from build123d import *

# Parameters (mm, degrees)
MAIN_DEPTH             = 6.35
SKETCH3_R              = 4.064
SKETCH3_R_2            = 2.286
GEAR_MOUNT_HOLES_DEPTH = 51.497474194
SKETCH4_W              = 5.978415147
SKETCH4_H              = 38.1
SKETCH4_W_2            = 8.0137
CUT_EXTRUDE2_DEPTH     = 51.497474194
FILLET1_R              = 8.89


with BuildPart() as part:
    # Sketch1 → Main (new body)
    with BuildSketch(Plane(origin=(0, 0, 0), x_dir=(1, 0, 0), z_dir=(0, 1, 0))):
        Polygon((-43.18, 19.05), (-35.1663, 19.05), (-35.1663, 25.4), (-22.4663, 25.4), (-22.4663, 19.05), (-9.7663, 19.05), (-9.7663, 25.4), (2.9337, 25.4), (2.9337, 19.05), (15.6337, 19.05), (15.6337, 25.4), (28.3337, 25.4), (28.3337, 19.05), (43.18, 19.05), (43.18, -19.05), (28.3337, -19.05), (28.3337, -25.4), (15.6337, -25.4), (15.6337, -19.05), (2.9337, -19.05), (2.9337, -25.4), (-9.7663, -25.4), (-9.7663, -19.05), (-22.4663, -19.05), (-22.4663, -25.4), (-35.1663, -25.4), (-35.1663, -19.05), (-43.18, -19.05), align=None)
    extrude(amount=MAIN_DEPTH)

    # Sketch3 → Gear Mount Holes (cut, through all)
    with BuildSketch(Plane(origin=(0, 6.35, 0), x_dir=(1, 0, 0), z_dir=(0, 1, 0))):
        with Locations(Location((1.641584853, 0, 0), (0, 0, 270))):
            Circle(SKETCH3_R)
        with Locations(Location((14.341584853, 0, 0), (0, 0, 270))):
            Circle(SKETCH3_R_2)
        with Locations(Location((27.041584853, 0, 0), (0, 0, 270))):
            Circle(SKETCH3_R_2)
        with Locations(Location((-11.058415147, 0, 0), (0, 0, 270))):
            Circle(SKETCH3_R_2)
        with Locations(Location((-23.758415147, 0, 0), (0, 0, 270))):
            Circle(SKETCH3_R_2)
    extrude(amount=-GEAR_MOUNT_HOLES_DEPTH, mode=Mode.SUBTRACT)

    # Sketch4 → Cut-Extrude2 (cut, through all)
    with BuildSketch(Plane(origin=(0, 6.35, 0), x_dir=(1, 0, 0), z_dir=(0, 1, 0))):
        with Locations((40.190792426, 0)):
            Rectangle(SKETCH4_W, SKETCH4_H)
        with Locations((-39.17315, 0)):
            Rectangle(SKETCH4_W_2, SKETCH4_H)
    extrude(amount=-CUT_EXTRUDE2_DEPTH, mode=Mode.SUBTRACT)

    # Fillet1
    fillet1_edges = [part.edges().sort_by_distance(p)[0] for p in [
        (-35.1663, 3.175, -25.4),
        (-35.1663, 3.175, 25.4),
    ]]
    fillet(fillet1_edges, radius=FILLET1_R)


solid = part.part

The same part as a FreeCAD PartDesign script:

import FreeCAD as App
import Part
import Sketcher
from FreeCAD import Vector
Q = App.Units.Quantity


def edges_at(feature, points):
    """Names of the edges that pass closest to the given points."""
    edges = feature.Shape.Edges
    near = lambda p: min(range(len(edges)), key=lambda i: edges[i].distToShape(Part.Vertex(*p))[0])
    return sorted({f"Edge{near(p) + 1}" for p in points})


def add_polygon(sketch, points):
    """Adds a closed chain of lines whose ends are joined by coincident constraints."""
    first, n = sketch.GeometryCount, len(points)
    for a, b in zip(points, points[1:] + points[:1]):
        sketch.addGeometry(Part.LineSegment(App.Vector(*a, 0), App.Vector(*b, 0)), False)
    for i in range(n):
        sketch.addConstraint(Sketcher.Constraint("Coincident", first + i, 2, first + (i + 1) % n, 1))

doc = App.newDocument("Part")
body = doc.addObject("PartDesign::Body", "Body")

# Sketch on XZ plane
sketch1 = doc.addObject("Sketcher::SketchObject", "Sketch")
body.addObject(sketch1)
sketch1.AttachmentSupport = (doc.XZ_Plane, [""])
sketch1.MapMode = "FlatFace"
add_polygon(sketch1, [(-35, -19), (-43, -19), (-43, 19), (-35, 19), (-35, 25), (-22, 25), (-22, 19), (-10, 19), (-10, 25), (3, 25), (3, 19), (16, 19), (16, 25), (28, 25), (28, 19), (43, 19), (43, -19), (28, -19), (28, -25), (16, -25), (16, -19), (3, -19), (3, -25), (-10, -25), (-10, -19), (-22, -19), (-22, -25), (-35, -25)])  # lines 0-27
sketch1.addConstraint([
    Sketcher.Constraint("Horizontal", 0),
    Sketcher.Constraint("Vertical", 1),
    Sketcher.Constraint("Horizontal", 2),
    Sketcher.Constraint("Vertical", 3),
    Sketcher.Constraint("Horizontal", 4),
    Sketcher.Constraint("Vertical", 5),
    Sketcher.Constraint("Horizontal", 6),
    Sketcher.Constraint("Vertical", 7),
    Sketcher.Constraint("Horizontal", 8),
    Sketcher.Constraint("Vertical", 9),
    Sketcher.Constraint("Horizontal", 10),
    Sketcher.Constraint("Vertical", 11),
    Sketcher.Constraint("Horizontal", 12),
    Sketcher.Constraint("Vertical", 13),
    Sketcher.Constraint("Horizontal", 14),
    Sketcher.Constraint("Vertical", 15),
    Sketcher.Constraint("Horizontal", 16),
    Sketcher.Constraint("Vertical", 17),
    Sketcher.Constraint("Horizontal", 18),
    Sketcher.Constraint("Vertical", 19),
    Sketcher.Constraint("Horizontal", 20),
    Sketcher.Constraint("Vertical", 21),
    Sketcher.Constraint("Horizontal", 22),
    Sketcher.Constraint("Vertical", 23),
    Sketcher.Constraint("Horizontal", 24),
    Sketcher.Constraint("Vertical", 25),
    Sketcher.Constraint("Horizontal", 26),
    Sketcher.Constraint("Vertical", 27),
    Sketcher.Constraint("Symmetric", 0, 2, 14, 2, -1, 1),
    Sketcher.Constraint("Symmetric", 13, 2, 16, 2, -1),
    Sketcher.Constraint("Symmetric", 11, 2, 18, 2, -1),
    Sketcher.Constraint("Symmetric", 9, 2, 20, 2, -1),
    Sketcher.Constraint("Symmetric", 7, 2, 22, 2, -1),
    Sketcher.Constraint("Symmetric", 5, 2, 24, 2, -1),
    Sketcher.Constraint("Symmetric", 3, 2, 26, 2, -1),
    Sketcher.Constraint("Horizontal", 2, 2, 5, 2),
    Sketcher.Constraint("Horizontal", 4, 2, 7, 2),
    Sketcher.Constraint("Horizontal", 6, 2, 9, 2),
    Sketcher.Constraint("Horizontal", 8, 2, 11, 2),
    Sketcher.Constraint("Horizontal", 10, 2, 13, 2),
    Sketcher.Constraint("Equal", 4, 6),
    Sketcher.Constraint("Equal", 6, 8),
    Sketcher.Constraint("Equal", 8, 10),
    Sketcher.Constraint("Equal", 10, 12),
    Sketcher.Constraint("DistanceX", 4, 1, 4, 2, Q("0.5 in")),
    Sketcher.Constraint("DistanceY", 1, 1, 1, 2, Q("1.5 in")),
    Sketcher.Constraint("DistanceY", -1, 1, 3, 2, Q("1 in")),
    Sketcher.Constraint("DistanceX", 0, 2, -1, 1, Q("1.7 in")),
    Sketcher.Constraint("DistanceX", 0, 2, 0, 1, Q("0.3155 in")),
])
pad1 = doc.addObject("PartDesign::Pad", "Pad")
body.addObject(pad1)
pad1.Profile = sketch1
pad1.Length = Q("0.25 in")
pad1.Reversed = True

# Sketch on XZ plane
sketch2 = doc.addObject("Sketcher::SketchObject", "Sketch001")
body.addObject(sketch2)
sketch2.AttachmentSupport = (doc.XZ_Plane, [""])
sketch2.MapMode = "FlatFace"
sketch2.AttachmentOffset = App.Placement(Vector(0, 0, -0.25 * 25.4), App.Rotation())
sketch2.addGeometry([
    Part.Circle(Vector(1.6, 0, 0), Vector(0, 0, 1), 4.1),  # 0
    Part.Circle(Vector(14.3, 0, 0), Vector(0, 0, 1), 2.3),  # 1
    Part.Circle(Vector(27, 0, 0), Vector(0, 0, 1), 2.3),  # 2
    Part.Circle(Vector(-11.1, 0, 0), Vector(0, 0, 1), 2.3),  # 3
    Part.Circle(Vector(-23.8, 0, 0), Vector(0, 0, 1), 2.3),  # 4
], False)
sketch2.addConstraint([
    Sketcher.Constraint("Equal", 1, 2),
    Sketcher.Constraint("Equal", 2, 3),
    Sketcher.Constraint("Equal", 3, 4),
    Sketcher.Constraint("PointOnObject", 0, 3, -1),
    Sketcher.Constraint("PointOnObject", 1, 3, -1),
    Sketcher.Constraint("PointOnObject", 2, 3, -1),
    Sketcher.Constraint("PointOnObject", 3, 3, -1),
    Sketcher.Constraint("PointOnObject", 4, 3, -1),
    Sketcher.Constraint("Diameter", 0, Q("0.32 in")),
    Sketcher.Constraint("Diameter", 1, Q("0.18 in")),
    Sketcher.Constraint("DistanceX", 0, 3, 2, 3, Q("1 in")),
    Sketcher.Constraint("DistanceX", 3, 3, 1, 3, Q("1 in")),
    Sketcher.Constraint("DistanceX", 4, 3, 0, 3, Q("1 in")),
    Sketcher.Constraint("DistanceX", 0, 3, 1, 3, Q("0.5 in")),
    Sketcher.Constraint("DistanceX", -1, 1, 0, 3, 1.641585),
])
pocket1 = doc.addObject("PartDesign::Pocket", "Pocket")
body.addObject(pocket1)
pocket1.Profile = sketch2
pocket1.Type = "ThroughAll"
pocket1.Reversed = True

# Sketch on XZ plane
sketch3 = doc.addObject("Sketcher::SketchObject", "Sketch002")
body.addObject(sketch3)
sketch3.AttachmentSupport = (doc.XZ_Plane, [""])
sketch3.MapMode = "FlatFace"
sketch3.AttachmentOffset = App.Placement(Vector(0, 0, -0.25 * 25.4), App.Rotation())
add_polygon(sketch3, [(37, -19), (37, 19), (43, 19), (43, -19)])  # lines 0-3
add_polygon(sketch3, [(-43, -19), (-43, 19), (-35, 19), (-35, -19)])  # lines 4-7
sketch3.addConstraint([
    Sketcher.Constraint("Vertical", 0),
    Sketcher.Constraint("Horizontal", 1),
    Sketcher.Constraint("Vertical", 2),
    Sketcher.Constraint("Horizontal", 3),
    Sketcher.Constraint("Vertical", 4),
    Sketcher.Constraint("Horizontal", 5),
    Sketcher.Constraint("Vertical", 6),
    Sketcher.Constraint("Horizontal", 7),
    Sketcher.Constraint("Symmetric", 2, 2, 4, 2, -1, 1),
    Sketcher.Constraint("Horizontal", 1, 2, 4, 2),
    Sketcher.Constraint("Horizontal", 3, 2, 6, 2),
    Sketcher.Constraint("DistanceY", 0, 1, 0, 2, Q("1.5 in")),
    Sketcher.Constraint("DistanceX", -1, 1, 1, 2, Q("1.7 in")),
    Sketcher.Constraint("DistanceX", 5, 1, 5, 2, Q("0.3155 in")),
    Sketcher.Constraint("DistanceX", 1, 1, 1, 2, 5.978415),
])
pocket2 = doc.addObject("PartDesign::Pocket", "Pocket001")
body.addObject(pocket2)
pocket2.Profile = sketch3
pocket2.Type = "ThroughAll"
pocket2.Reversed = True
doc.recompute()

fillet = doc.addObject("PartDesign::Fillet", "Fillet")
body.addObject(fillet)
fillet.Base = (pocket2, edges_at(pocket2, [(-35.166, 3.175, -25.4), (-35.166, 3.175, 25.4)]))
fillet.Radius = Q("0.35 in")

doc.recompute()
